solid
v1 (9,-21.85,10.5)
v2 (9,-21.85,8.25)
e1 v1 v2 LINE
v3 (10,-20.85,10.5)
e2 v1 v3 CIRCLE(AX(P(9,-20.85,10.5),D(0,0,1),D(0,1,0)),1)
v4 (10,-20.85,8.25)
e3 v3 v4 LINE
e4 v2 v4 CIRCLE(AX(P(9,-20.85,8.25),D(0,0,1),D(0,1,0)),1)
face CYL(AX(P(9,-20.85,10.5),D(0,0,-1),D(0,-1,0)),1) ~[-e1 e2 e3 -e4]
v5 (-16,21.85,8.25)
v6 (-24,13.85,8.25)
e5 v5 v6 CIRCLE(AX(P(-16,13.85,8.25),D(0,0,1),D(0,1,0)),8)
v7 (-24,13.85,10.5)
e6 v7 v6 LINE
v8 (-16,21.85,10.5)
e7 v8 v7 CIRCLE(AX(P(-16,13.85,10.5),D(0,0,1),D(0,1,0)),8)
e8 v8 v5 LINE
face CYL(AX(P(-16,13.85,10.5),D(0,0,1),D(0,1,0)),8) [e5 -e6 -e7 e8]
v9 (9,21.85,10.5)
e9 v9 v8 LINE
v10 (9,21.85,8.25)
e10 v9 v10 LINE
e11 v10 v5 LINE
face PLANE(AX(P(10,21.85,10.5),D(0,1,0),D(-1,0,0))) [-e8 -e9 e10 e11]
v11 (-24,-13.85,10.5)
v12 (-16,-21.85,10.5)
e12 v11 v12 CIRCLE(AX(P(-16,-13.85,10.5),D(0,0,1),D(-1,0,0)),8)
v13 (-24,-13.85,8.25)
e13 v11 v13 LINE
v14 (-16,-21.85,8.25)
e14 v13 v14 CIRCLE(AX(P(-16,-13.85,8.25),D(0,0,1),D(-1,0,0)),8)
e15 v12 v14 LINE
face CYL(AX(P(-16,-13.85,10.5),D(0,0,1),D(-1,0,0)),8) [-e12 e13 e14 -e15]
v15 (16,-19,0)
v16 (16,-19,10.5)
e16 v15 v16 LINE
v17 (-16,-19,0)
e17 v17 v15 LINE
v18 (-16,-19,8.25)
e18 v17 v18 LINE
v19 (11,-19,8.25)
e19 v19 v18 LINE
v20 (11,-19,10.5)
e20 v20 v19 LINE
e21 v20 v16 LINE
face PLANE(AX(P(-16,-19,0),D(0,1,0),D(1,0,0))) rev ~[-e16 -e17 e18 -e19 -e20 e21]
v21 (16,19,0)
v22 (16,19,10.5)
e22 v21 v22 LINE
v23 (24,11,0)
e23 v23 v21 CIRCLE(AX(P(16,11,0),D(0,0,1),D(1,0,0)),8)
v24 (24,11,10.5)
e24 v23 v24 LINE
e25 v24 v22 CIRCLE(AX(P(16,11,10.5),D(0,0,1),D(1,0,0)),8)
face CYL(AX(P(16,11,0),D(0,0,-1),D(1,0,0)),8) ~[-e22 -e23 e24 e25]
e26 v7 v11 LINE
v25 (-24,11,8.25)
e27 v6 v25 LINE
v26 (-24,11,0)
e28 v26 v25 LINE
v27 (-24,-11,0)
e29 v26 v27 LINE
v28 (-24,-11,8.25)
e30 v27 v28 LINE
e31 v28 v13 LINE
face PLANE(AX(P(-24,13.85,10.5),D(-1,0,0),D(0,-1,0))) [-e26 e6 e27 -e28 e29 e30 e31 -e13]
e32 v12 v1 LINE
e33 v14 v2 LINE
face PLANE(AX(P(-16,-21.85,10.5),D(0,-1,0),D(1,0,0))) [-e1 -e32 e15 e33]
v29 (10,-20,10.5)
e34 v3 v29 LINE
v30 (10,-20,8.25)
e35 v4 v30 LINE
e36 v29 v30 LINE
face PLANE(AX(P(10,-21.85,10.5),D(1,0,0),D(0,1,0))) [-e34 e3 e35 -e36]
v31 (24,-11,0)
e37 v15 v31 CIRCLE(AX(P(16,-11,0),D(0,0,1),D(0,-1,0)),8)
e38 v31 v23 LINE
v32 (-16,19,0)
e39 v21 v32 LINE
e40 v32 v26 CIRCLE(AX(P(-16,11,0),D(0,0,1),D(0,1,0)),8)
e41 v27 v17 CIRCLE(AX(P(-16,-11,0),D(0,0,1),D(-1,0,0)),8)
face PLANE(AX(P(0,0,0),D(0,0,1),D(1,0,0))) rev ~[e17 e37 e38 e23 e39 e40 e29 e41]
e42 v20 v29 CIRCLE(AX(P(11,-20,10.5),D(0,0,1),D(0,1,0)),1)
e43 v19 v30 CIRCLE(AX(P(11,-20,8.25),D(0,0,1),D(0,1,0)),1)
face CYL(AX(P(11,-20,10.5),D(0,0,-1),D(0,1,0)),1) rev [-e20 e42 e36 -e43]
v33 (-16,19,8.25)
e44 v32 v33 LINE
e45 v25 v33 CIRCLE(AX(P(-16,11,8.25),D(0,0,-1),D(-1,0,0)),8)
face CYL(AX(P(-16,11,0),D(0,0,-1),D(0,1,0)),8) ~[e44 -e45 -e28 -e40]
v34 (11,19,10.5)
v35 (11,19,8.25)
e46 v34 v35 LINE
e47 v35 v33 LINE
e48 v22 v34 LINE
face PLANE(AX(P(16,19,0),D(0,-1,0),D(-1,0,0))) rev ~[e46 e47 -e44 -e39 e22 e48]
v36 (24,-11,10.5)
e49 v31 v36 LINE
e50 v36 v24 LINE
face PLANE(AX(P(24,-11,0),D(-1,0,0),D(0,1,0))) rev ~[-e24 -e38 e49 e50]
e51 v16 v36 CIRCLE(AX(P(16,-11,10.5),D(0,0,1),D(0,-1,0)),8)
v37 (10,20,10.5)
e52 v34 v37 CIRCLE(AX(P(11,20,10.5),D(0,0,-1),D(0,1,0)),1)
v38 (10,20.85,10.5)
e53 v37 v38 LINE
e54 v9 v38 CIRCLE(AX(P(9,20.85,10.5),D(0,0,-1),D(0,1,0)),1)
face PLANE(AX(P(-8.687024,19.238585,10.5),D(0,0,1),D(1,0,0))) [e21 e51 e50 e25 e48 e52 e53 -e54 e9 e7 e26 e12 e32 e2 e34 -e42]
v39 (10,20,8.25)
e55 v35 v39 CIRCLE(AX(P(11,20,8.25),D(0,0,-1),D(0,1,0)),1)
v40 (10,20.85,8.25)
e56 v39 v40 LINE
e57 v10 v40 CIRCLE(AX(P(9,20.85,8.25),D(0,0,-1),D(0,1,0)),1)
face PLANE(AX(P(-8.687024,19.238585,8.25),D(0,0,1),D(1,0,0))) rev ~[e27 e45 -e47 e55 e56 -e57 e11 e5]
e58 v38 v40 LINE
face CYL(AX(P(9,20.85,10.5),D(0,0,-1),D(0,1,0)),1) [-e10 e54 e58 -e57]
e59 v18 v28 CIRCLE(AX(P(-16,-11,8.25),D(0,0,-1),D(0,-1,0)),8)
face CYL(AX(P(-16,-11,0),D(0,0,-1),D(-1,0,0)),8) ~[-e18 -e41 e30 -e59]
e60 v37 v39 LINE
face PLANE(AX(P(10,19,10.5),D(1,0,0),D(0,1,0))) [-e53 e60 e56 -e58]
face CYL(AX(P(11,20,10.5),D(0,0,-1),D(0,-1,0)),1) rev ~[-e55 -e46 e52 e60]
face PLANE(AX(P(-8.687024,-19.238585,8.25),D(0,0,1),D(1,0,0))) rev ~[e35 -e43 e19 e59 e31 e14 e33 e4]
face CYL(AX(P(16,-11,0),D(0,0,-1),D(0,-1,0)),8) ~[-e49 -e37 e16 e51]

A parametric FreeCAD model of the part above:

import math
import FreeCAD as App
import Part
import Sketcher
from FreeCAD import Vector
Q = App.Units.Quantity


def edges_at(feature, points):
    """Names of the edges that pass closest to the given points."""
    edges = feature.Shape.Edges
    near = lambda p: min(range(len(edges)), key=lambda i: edges[i].distToShape(Part.Vertex(*p))[0])
    return sorted({f"Edge{near(p) + 1}" for p in points})

doc = App.newDocument("Part")
params = doc.addObject("Spreadsheet::Sheet", "Params")
for row, (alias, value) in enumerate([
    ("sketch1_radius", "8 mm"),
    ("sketch1_width", "32 mm"),
    ("sketch1_height", "22 mm"),
    ("pad1_length", "10.5 mm"),
    ("sketch2_radius", "8 mm"),
    ("sketch2_width", "26 mm"),
    ("sketch2_height", "2.85 mm"),
    ("pad2_length", "2.25 mm"),
    ("fillet_radius", "1 mm"),
], start=1):
    params.set(f"A{row}", alias)
    params.set(f"B{row}", "=" + value)
    params.setAlias(f"B{row}", alias)

body = doc.addObject("PartDesign::Body", "Body")

# Sketch on XY plane
sketch1 = body.newObject("Sketcher::SketchObject", "Sketch")
sketch1.AttachmentSupport = (doc.getObject("XY_Plane"), [""])
sketch1.MapMode = "FlatFace"
sketch1.addGeometry(Part.LineSegment(Vector(16, 19, 0), Vector(-16, 19, 0)), False)
sketch1.addGeometry(Part.ArcOfCircle(Part.Circle(Vector(-16, 11, 0), Vector(0, 0, 1), 8), math.radians(90), math.radians(180)), False)
sketch1.addGeometry(Part.LineSegment(Vector(-24, 11, 0), Vector(-24, -11, 0)), False)
sketch1.addGeometry(Part.ArcOfCircle(Part.Circle(Vector(-16, -11, 0), Vector(0, 0, 1), 8), math.radians(180), math.radians(270)), False)
sketch1.addGeometry(Part.LineSegment(Vector(-16, -19, 0), Vector(16, -19, 0)), False)
sketch1.addGeometry(Part.ArcOfCircle(Part.Circle(Vector(16, -11, 0), Vector(0, 0, 1), 8), math.radians(-90), math.radians(0)), False)
sketch1.addGeometry(Part.LineSegment(Vector(24, -11, 0), Vector(24, 11, 0)), False)
sketch1.addGeometry(Part.ArcOfCircle(Part.Circle(Vector(16, 11, 0), Vector(0, 0, 1), 8), math.radians(0), math.radians(90)), False)
sketch1.addConstraint(Sketcher.Constraint("Tangent", 0, 2, 1, 1))
sketch1.addConstraint(Sketcher.Constraint("Tangent", 1, 2, 2, 1))
sketch1.addConstraint(Sketcher.Constraint("Tangent", 2, 2, 3, 1))
sketch1.addConstraint(Sketcher.Constraint("Tangent", 3, 2, 4, 1))
sketch1.addConstraint(Sketcher.Constraint("Tangent", 4, 2, 5, 1))
sketch1.addConstraint(Sketcher.Constraint("Tangent", 5, 2, 6, 1))
sketch1.addConstraint(Sketcher.Constraint("Tangent", 6, 2, 7, 1))
sketch1.addConstraint(Sketcher.Constraint("Tangent", 7, 2, 0, 1))
sketch1.addConstraint(Sketcher.Constraint("Horizontal", 0))
sketch1.addConstraint(Sketcher.Constraint("Vertical", 2))
sketch1.addConstraint(Sketcher.Constraint("Horizontal", 4))
sketch1.addConstraint(Sketcher.Constraint("Vertical", 6))
sketch1.addConstraint(Sketcher.Constraint("Equal", 1, 3))
sketch1.addConstraint(Sketcher.Constraint("Equal", 3, 5))
sketch1.addConstraint(Sketcher.Constraint("Equal", 5, 7))
sketch1.addConstraint(Sketcher.Constraint("Symmetric", 1, 3, 5, 3, -1, 1))
sketch1.addConstraint(Sketcher.Constraint("Radius", 1, Q("8 mm")))
sketch1.addConstraint(Sketcher.Constraint("DistanceX", 0, 2, 0, 1, Q("32 mm")))
sketch1.addConstraint(Sketcher.Constraint("DistanceY", 2, 2, 2, 1, Q("22 mm")))
sketch1.setExpression("Constraints[16]", "Params.sketch1_radius")
sketch1.setExpression("Constraints[17]", "Params.sketch1_width")
sketch1.setExpression("Constraints[18]", "Params.sketch1_height")
pad1 = body.newObject("PartDesign::Pad", "Pad")
pad1.Profile = sketch1
pad1.setExpression("Length", "Params.pad1_length")

# Sketch on XY plane
sketch2 = body.newObject("Sketcher::SketchObject", "Sketch001")
sketch2.AttachmentSupport = (doc.getObject("XY_Plane"), [""])
sketch2.MapMode = "FlatFace"
sketch2.AttachmentOffset = App.Placement(Vector(0, 0, 10.5), App.Rotation())
sketch2.addGeometry(Part.LineSegment(Vector(10, 21.85, 0), Vector(-16, 21.85, 0)), False)
sketch2.addGeometry(Part.ArcOfCircle(Part.Circle(Vector(-16, 13.85, 0), Vector(0, 0, 1), 8), math.radians(90), math.radians(180)), False)
sketch2.addGeometry(Part.LineSegment(Vector(-24, 13.85, 0), Vector(-24, 11, 0)), False)
sketch2.addGeometry(Part.ArcOfCircle(Part.Circle(Vector(-16, 11, 0), Vector(0, 0, 1), 8), math.radians(90), math.radians(180)), False)
sketch2.addGeometry(Part.LineSegment(Vector(-16, 19, 0), Vector(10, 19, 0)), False)
sketch2.addGeometry(Part.LineSegment(Vector(10, 19, 0), Vector(10, 21.85, 0)), False)
sketch2.addGeometry(Part.LineSegment(Vector(10, -21.85, 0), Vector(10, -19, 0)), False)
sketch2.addGeometry(Part.LineSegment(Vector(10, -19, 0), Vector(-16, -19, 0)), False)
sketch2.addGeometry(Part.ArcOfCircle(Part.Circle(Vector(-16, -11, 0), Vector(0, 0, 1), 8), math.radians(180), math.radians(270)), False)
sketch2.addGeometry(Part.LineSegment(Vector(-24, -11, 0), Vector(-24, -13.85, 0)), False)
sketch2.addGeometry(Part.ArcOfCircle(Part.Circle(Vector(-16, -13.85, 0), Vector(0, 0, 1), 8), math.radians(180), math.radians(270)), False)
sketch2.addGeometry(Part.LineSegment(Vector(-16, -21.85, 0), Vector(10, -21.85, 0)), False)
sketch2.addConstraint(Sketcher.Constraint("Tangent", 0, 2, 1, 1))
sketch2.addConstraint(Sketcher.Constraint("Tangent", 1, 2, 2, 1))
sketch2.addConstraint(Sketcher.Constraint("Tangent", 2, 2, 3, 2))
sketch2.addConstraint(Sketcher.Constraint("Tangent", 3, 1, 4, 1))
sketch2.addConstraint(Sketcher.Constraint("Coincident", 4, 2, 5, 1))
sketch2.addConstraint(Sketcher.Constraint("Coincident", 5, 2, 0, 1))
sketch2.addConstraint(Sketcher.Constraint("Coincident", 6, 2, 7, 1))
sketch2.addConstraint(Sketcher.Constraint("Tangent", 7, 2, 8, 2))
sketch2.addConstraint(Sketcher.Constraint("Tangent", 8, 1, 9, 1))
sketch2.addConstraint(Sketcher.Constraint("Tangent", 9, 2, 10, 1))
sketch2.addConstraint(Sketcher.Constraint("Tangent", 10, 2, 11, 1))
sketch2.addConstraint(Sketcher.Constraint("Coincident", 11, 2, 6, 1))
sketch2.addConstraint(Sketcher.Constraint("Horizontal", 0))
sketch2.addConstraint(Sketcher.Constraint("Vertical", 2))
sketch2.addConstraint(Sketcher.Constraint("Horizontal", 4))
sketch2.addConstraint(Sketcher.Constraint("Vertical", 5))
sketch2.addConstraint(Sketcher.Constraint("Vertical", 6))
sketch2.addConstraint(Sketcher.Constraint("Horizontal", 7))
sketch2.addConstraint(Sketcher.Constraint("Vertical", 9))
sketch2.addConstraint(Sketcher.Constraint("Horizontal", 11))
sketch2.addConstraint(Sketcher.Constraint("Equal", 1, 3))
sketch2.addConstraint(Sketcher.Constraint("Equal", 3, 8))
sketch2.addConstraint(Sketcher.Constraint("Equal", 8, 10))
sketch2.addConstraint(Sketcher.Constraint("Symmetric", 3, 3, 8, 3, -1))
sketch2.addConstraint(Sketcher.Constraint("Symmetric", 5, 2, 11, 2, -1))
sketch2.addConstraint(Sketcher.Constraint("Radius", 1, Q("8 mm")))
sketch2.addConstraint(Sketcher.Constraint("DistanceX", 0, 2, 0, 1, Q("26 mm")))
sketch2.addConstraint(Sketcher.Constraint("DistanceX", 1, 3, -1, 1, Q("16 mm")))
sketch2.addConstraint(Sketcher.Constraint("DistanceY", -1, 1, 3, 3, Q("11 mm")))
sketch2.addConstraint(Sketcher.Constraint("DistanceY", 2, 2, 2, 1, Q("2.85 mm")))
sketch2.setExpression("Constraints[25]", "Params.sketch2_radius")
sketch2.setExpression("Constraints[26]", "Params.sketch2_width")
sketch2.setExpression("Constraints[29]", "Params.sketch2_height")
pad2 = body.newObject("PartDesign::Pad", "Pad001")
pad2.Profile = sketch2
pad2.setExpression("Length", "Params.pad2_length")
pad2.Reversed = True
doc.recompute()

fillet = body.newObject("PartDesign::Fillet", "Fillet")
fillet.Base = (pad2, edges_at(pad2, [
    (10, -19, 9.375),
    (10, -21.85, 9.375),
    (10, 21.85, 9.375),
    (10, 19, 9.375),
]))
fillet.setExpression("Radius", "Params.fillet_radius")

doc.recompute()
